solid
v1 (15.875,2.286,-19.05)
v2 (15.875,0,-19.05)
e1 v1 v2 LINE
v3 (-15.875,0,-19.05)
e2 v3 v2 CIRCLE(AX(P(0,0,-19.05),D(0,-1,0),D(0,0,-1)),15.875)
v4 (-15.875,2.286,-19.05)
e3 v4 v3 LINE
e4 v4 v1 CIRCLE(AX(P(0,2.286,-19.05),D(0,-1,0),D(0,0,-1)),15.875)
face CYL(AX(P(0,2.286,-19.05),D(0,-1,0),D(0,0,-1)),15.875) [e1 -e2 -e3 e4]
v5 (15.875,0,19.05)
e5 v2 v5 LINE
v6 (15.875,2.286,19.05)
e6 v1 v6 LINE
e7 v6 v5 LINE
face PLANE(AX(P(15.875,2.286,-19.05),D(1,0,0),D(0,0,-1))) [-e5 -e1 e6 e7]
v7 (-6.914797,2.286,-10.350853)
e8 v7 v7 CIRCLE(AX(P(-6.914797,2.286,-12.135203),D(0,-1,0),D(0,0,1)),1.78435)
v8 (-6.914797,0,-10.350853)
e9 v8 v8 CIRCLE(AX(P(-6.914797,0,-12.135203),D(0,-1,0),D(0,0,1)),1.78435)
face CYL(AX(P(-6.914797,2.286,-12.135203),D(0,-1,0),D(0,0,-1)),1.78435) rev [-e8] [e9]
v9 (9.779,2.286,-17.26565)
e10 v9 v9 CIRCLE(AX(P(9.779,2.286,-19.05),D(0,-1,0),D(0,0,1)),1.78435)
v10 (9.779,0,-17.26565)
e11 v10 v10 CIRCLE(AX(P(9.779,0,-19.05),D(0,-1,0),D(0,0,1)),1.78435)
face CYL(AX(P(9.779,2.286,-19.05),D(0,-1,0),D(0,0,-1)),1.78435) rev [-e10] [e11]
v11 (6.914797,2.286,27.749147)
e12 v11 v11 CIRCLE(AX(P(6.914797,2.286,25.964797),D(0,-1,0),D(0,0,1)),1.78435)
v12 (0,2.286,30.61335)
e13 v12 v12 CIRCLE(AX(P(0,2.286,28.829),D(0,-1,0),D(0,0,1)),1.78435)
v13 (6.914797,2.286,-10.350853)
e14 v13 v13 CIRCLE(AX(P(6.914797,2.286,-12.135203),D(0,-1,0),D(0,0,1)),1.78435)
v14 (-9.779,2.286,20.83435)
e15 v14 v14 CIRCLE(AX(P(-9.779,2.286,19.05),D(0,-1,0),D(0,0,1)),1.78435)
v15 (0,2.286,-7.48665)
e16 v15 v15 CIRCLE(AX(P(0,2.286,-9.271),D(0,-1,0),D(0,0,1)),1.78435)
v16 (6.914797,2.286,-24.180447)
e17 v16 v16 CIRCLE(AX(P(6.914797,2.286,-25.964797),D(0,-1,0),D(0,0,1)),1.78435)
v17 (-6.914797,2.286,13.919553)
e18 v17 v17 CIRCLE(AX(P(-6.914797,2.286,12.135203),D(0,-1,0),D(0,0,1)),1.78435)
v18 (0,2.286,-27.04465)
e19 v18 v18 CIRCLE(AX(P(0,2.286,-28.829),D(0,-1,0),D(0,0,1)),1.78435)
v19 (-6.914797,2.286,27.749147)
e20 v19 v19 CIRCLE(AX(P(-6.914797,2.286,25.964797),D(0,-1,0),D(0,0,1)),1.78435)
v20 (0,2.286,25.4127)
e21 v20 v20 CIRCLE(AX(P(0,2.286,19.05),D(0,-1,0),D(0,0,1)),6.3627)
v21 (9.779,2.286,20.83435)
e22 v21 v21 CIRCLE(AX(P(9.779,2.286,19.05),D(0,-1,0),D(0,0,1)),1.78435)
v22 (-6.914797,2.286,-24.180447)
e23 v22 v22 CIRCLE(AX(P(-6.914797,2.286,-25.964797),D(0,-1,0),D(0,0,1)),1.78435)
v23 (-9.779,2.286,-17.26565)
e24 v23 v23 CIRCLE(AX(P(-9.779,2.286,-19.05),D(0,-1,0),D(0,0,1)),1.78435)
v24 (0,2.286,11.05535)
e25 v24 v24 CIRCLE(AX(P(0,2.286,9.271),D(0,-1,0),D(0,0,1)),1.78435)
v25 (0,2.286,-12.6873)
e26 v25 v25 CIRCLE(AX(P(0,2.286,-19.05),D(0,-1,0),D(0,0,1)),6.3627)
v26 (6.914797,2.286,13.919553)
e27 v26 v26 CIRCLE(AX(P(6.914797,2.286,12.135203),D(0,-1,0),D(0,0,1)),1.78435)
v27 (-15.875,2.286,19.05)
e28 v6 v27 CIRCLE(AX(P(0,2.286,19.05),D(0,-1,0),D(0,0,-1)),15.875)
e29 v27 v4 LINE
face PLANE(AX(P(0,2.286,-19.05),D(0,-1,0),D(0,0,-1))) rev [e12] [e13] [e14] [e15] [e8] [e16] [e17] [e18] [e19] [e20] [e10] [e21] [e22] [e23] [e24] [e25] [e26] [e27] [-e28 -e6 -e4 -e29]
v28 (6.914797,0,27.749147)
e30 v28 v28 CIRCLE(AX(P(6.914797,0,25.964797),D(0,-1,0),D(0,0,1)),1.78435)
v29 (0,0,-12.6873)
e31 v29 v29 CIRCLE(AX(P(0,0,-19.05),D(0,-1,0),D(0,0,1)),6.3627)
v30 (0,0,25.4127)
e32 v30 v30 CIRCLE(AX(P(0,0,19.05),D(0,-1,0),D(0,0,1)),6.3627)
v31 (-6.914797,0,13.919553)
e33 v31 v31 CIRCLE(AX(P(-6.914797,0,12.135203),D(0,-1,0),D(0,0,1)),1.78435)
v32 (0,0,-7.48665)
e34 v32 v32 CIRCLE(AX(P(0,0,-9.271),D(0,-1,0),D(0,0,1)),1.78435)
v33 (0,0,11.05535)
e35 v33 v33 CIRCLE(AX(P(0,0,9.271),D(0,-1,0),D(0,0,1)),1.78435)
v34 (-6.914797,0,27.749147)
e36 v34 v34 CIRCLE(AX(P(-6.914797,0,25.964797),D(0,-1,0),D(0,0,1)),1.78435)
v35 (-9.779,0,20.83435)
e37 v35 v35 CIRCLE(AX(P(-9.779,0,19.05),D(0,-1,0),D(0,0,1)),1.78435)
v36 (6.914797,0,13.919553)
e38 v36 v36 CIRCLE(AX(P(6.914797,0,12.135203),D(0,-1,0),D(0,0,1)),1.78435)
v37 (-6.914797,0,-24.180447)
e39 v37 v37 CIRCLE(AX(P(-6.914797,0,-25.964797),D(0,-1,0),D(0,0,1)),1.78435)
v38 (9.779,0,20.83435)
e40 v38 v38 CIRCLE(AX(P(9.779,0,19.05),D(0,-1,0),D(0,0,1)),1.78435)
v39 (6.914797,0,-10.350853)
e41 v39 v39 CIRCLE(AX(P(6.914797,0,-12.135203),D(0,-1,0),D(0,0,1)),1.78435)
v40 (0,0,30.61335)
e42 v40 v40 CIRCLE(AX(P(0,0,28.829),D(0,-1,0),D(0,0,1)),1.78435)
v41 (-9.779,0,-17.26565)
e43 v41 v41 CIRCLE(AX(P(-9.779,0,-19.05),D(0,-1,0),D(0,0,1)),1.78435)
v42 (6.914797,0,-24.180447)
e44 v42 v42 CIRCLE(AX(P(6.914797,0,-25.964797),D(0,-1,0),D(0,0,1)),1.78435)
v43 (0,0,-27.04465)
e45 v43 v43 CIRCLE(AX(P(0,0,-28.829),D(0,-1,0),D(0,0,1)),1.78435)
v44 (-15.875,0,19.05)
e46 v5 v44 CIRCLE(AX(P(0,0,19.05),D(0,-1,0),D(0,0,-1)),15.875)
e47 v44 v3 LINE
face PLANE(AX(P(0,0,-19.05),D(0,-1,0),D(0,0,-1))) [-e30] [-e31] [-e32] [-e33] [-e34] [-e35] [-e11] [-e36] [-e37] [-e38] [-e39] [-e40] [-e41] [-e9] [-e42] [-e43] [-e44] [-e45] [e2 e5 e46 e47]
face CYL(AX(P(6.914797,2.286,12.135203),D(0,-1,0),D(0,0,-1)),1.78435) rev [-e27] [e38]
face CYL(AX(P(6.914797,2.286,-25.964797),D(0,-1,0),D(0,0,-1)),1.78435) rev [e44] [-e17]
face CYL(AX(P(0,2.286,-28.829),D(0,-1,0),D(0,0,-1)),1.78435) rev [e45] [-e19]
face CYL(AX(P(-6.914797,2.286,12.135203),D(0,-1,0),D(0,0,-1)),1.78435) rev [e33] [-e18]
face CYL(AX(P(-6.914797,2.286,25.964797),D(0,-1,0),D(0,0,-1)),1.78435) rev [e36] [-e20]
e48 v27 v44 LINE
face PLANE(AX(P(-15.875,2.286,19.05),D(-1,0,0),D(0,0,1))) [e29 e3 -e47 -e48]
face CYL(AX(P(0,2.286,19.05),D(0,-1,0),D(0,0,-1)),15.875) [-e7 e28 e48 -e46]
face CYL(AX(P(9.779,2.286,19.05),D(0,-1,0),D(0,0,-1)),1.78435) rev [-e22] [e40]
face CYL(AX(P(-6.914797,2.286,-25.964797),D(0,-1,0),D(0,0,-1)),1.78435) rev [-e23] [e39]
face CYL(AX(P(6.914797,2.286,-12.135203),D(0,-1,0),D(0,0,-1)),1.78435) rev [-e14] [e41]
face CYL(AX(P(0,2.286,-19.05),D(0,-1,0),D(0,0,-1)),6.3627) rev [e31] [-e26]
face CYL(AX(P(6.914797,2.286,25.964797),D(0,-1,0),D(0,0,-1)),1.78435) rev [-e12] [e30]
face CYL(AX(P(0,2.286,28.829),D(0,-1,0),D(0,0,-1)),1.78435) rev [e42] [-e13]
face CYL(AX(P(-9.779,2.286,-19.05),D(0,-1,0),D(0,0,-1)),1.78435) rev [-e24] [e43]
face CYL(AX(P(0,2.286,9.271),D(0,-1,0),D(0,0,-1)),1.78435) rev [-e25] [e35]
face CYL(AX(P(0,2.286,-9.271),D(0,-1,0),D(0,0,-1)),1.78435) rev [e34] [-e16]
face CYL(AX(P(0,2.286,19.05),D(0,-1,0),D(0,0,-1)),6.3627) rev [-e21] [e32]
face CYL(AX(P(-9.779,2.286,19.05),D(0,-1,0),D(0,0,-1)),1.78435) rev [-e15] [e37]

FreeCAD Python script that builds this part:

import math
import FreeCAD as App
import Part
import Sketcher

V = App.Vector
Q = App.Units.Quantity

doc = App.newDocument("Part")
params = doc.addObject("Spreadsheet::Sheet", "Params")
for row, (alias, value) in enumerate([
    ("sketch1_diameter", "0.501 in"),
    ("sketch1_height", "1.5 in"),
    ("sketch1_radius", "0.625 in"),
    ("pad1_length", "0.09 in"),
], start=1):
    params.set(f"A{row}", alias)
    params.set(f"B{row}", "=" + value)
    params.setAlias(f"B{row}", alias)

body = doc.addObject("PartDesign::Body", "Body")

# Sketch on XZ plane
sketch1 = doc.addObject("Sketcher::SketchObject", "Sketch")
body.addObject(sketch1)
sketch1.AttachmentSupport = (doc.XZ_Plane, [""])
sketch1.MapMode = "FlatFace"
sketch1.addGeometry(Part.LineSegment(V(15.9, -19.1, 0), V(15.9, 19.1, 0)), False)
sketch1.addGeometry(Part.ArcOfCircle(Part.Circle(V(0, 19.1, 0), V(0, 0, 1), 15.9), math.radians(0), math.radians(180)), False)
sketch1.addGeometry(Part.LineSegment(V(-15.9, 19.1, 0), V(-15.9, -19.1, 0)), False)
sketch1.addGeometry(Part.ArcOfCircle(Part.Circle(V(0, -19.1, 0), V(0, 0, 1), 15.9), math.radians(180), math.radians(360)), False)
sketch1.addGeometry(Part.Circle(V(-6.9, -26, 0), V(0, 0, 1), 1.8), False)
sketch1.addGeometry(Part.Circle(V(-9.8, -19.1, 0), V(0, 0, 1), 1.8), False)
sketch1.addGeometry(Part.Circle(V(-6.9, -12.1, 0), V(0, 0, 1), 1.8), False)
sketch1.addGeometry(Part.Circle(V(0, -28.8, 0), V(0, 0, 1), 1.8), False)
sketch1.addGeometry(Part.Circle(V(0, -19.1, 0), V(0, 0, 1), 6.4), False)
sketch1.addGeometry(Part.Circle(V(6.9, -26, 0), V(0, 0, 1), 1.8), False)
sketch1.addGeometry(Part.Circle(V(9.8, -19.1, 0), V(0, 0, 1), 1.8), False)
sketch1.addGeometry(Part.Circle(V(0, -9.3, 0), V(0, 0, 1), 1.8), False)
sketch1.addGeometry(Part.Circle(V(6.9, -12.1, 0), V(0, 0, 1), 1.8), False)
sketch1.addGeometry(Part.Circle(V(-6.9, 12.1, 0), V(0, 0, 1), 1.8), False)
sketch1.addGeometry(Part.Circle(V(-9.8, 19.1, 0), V(0, 0, 1), 1.8), False)
sketch1.addGeometry(Part.Circle(V(-6.9, 26, 0), V(0, 0, 1), 1.8), False)
sketch1.addGeometry(Part.Circle(V(0, 9.3, 0), V(0, 0, 1), 1.8), False)
sketch1.addGeometry(Part.Circle(V(6.9, 12.1, 0), V(0, 0, 1), 1.8), False)
sketch1.addGeometry(Part.Circle(V(0, 19.1, 0), V(0, 0, 1), 6.4), False)
sketch1.addGeometry(Part.Circle(V(0, 28.8, 0), V(0, 0, 1), 1.8), False)
sketch1.addGeometry(Part.Circle(V(9.8, 19.1, 0), V(0, 0, 1), 1.8), False)
sketch1.addGeometry(Part.Circle(V(6.9, 26, 0), V(0, 0, 1), 1.8), False)
sketch1.addConstraint(Sketcher.Constraint("Tangent", 0, 2, 1, 1))
sketch1.addConstraint(Sketcher.Constraint("Tangent", 1, 2, 2, 1))
sketch1.addConstraint(Sketcher.Constraint("Tangent", 2, 2, 3, 1))
sketch1.addConstraint(Sketcher.Constraint("Tangent", 3, 2, 0, 1))
sketch1.addConstraint(Sketcher.Constraint("Vertical", 0))
sketch1.addConstraint(Sketcher.Constraint("Vertical", 2))
sketch1.addConstraint(Sketcher.Constraint("Coincident", 8, 3, 3, 3))
sketch1.addConstraint(Sketcher.Constraint("Coincident", 18, 3, 1, 3))
sketch1.addConstraint(Sketcher.Constraint("Equal", 4, 5))
sketch1.addConstraint(Sketcher.Constraint("Equal", 5, 6))
sketch1.addConstraint(Sketcher.Constraint("Equal", 6, 7))
sketch1.addConstraint(Sketcher.Constraint("Equal", 7, 9))
sketch1.addConstraint(Sketcher.Constraint("Equal", 9, 10))
sketch1.addConstraint(Sketcher.Constraint("Equal", 10, 11))
sketch1.addConstraint(Sketcher.Constraint("Equal", 11, 12))
sketch1.addConstraint(Sketcher.Constraint("Equal", 12, 13))
sketch1.addConstraint(Sketcher.Constraint("Equal", 13, 14))
sketch1.addConstraint(Sketcher.Constraint("Equal", 14, 15))
sketch1.addConstraint(Sketcher.Constraint("Equal", 15, 16))
sketch1.addConstraint(Sketcher.Constraint("Equal", 16, 17))
sketch1.addConstraint(Sketcher.Constraint("Equal", 8, 18))
sketch1.addConstraint(Sketcher.Constraint("Equal", 17, 19))
sketch1.addConstraint(Sketcher.Constraint("Equal", 19, 20))
sketch1.addConstraint(Sketcher.Constraint("Equal", 20, 21))
sketch1.addConstraint(Sketcher.Constraint("Symmetric", 1, 3, 3, 3, -1, 1))
sketch1.addConstraint(Sketcher.Constraint("Symmetric", 12, 3, 13, 3, -1, 1))
sketch1.addConstraint(Sketcher.Constraint("Symmetric", 10, 3, 14, 3, -1, 1))
sketch1.addConstraint(Sketcher.Constraint("Symmetric", 9, 3, 15, 3, -1, 1))
sketch1.addConstraint(Sketcher.Constraint("Symmetric", 11, 3, 16, 3, -1, 1))
sketch1.addConstraint(Sketcher.Constraint("Symmetric", 6, 3, 17, 3, -1, 1))
sketch1.addConstraint(Sketcher.Constraint("Symmetric", 7, 3, 19, 3, -1, 1))
sketch1.addConstraint(Sketcher.Constraint("Symmetric", 5, 3, 20, 3, -1, 1))
sketch1.addConstraint(Sketcher.Constraint("Symmetric", 4, 3, 21, 3, -1, 1))
sketch1.addConstraint(Sketcher.Constraint("Symmetric", 4, 3, 9, 3, -2))
sketch1.addConstraint(Sketcher.Constraint("Symmetric", 5, 3, 10, 3, -2))
sketch1.addConstraint(Sketcher.Constraint("Symmetric", 6, 3, 12, 3, -2))
sketch1.addConstraint(Sketcher.Constraint("PointOnObject", 7, 3, -2))
sketch1.addConstraint(Sketcher.Constraint("PointOnObject", 11, 3, -2))
sketch1.addConstraint(Sketcher.Constraint("Horizontal", 3, 3, 5, 3))
sketch1.addConstraint(Sketcher.Constraint("Vertical", 4, 3, 6, 3))
sketch1.addConstraint(Sketcher.Constraint("Diameter", 8, Q("0.501 in")))
sketch1.addConstraint(Sketcher.Constraint("DistanceY", 0, 1, 0, 2, Q("1.5 in")))
sketch1.addConstraint(Sketcher.Constraint("Radius", 1, Q("0.625 in")))
sketch1.addConstraint(Sketcher.Constraint("Diameter", 4, Q("0.1405 in")))
sketch1.addConstraint(Sketcher.Constraint("DistanceY", 6, 3, 15, 3, Q("1.5 in")))
sketch1.addConstraint(Sketcher.Constraint("DistanceY", 11, 3, 16, 3, Q("0.73 in")))
sketch1.addConstraint(Sketcher.Constraint("DistanceX", 20, 3, 0, 2, Q("0.24 in")))
sketch1.addConstraint(Sketcher.Constraint("DistanceY", 7, 3, -1, 1, Q("1.135 in")))
sketch1.addConstraint(Sketcher.Constraint("DistanceX", 4, 3, -1, 1, Q("6.914797 mm")))
sketch1.addConstraint(Sketcher.Constraint("DistanceY", 4, 3, -1, 1, Q("25.964797 mm")))
sketch1.setExpression("Constraints[40]", "Params.sketch1_diameter")
sketch1.setExpression("Constraints[41]", "Params.sketch1_height")
sketch1.setExpression("Constraints[42]", "Params.sketch1_radius")
pad1 = doc.addObject("PartDesign::Pad", "Pad")
body.addObject(pad1)
pad1.Profile = sketch1
pad1.setExpression("Length", "Params.pad1_length")
pad1.Reversed = True

doc.recompute()
